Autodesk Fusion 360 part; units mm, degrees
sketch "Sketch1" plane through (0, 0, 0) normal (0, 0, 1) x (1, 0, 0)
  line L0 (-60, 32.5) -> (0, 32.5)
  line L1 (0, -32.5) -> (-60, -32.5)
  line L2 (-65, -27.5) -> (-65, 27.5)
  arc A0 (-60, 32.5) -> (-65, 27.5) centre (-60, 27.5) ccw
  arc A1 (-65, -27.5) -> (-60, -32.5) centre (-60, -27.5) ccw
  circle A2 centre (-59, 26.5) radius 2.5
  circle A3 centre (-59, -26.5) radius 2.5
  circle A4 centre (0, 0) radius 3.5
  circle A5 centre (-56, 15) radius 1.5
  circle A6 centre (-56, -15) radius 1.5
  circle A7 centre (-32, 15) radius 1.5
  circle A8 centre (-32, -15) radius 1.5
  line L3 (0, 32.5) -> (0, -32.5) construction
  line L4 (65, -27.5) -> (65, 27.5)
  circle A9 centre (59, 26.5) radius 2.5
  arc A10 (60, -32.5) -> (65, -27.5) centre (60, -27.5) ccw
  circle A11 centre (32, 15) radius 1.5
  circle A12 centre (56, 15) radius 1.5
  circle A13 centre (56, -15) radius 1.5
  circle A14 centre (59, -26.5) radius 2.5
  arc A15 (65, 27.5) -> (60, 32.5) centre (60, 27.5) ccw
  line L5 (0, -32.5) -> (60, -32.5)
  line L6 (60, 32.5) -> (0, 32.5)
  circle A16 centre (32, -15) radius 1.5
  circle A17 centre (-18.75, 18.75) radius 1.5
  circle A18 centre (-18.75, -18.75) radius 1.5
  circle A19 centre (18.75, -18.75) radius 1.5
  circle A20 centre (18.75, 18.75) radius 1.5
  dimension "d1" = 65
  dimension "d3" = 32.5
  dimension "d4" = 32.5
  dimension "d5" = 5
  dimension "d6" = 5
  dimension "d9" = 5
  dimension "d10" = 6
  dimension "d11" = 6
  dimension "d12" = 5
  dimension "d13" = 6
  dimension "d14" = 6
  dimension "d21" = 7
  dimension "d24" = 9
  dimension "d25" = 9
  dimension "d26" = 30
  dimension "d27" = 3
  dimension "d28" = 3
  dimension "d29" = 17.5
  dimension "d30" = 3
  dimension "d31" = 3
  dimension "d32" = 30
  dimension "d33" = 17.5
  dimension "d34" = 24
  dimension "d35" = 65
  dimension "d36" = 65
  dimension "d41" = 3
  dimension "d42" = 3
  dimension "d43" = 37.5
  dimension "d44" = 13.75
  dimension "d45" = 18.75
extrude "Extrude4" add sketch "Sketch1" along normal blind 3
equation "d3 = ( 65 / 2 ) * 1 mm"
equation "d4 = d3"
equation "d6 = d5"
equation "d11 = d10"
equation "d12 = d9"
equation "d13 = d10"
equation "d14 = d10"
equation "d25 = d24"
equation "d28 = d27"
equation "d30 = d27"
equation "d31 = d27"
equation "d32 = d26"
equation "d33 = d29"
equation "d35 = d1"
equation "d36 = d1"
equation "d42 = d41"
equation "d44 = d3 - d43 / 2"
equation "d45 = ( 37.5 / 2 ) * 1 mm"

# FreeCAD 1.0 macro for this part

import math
import FreeCAD as App
import Part
import Sketcher

V = App.Vector
Q = App.Units.Quantity

doc = App.newDocument("Part")
body = doc.addObject("PartDesign::Body", "Body")

# Sketch on XY plane
sketch1 = doc.addObject("Sketcher::SketchObject", "Sketch")
body.addObject(sketch1)
sketch1.AttachmentSupport = (doc.XY_Plane, [""])
sketch1.MapMode = "FlatFace"
sketch1.addGeometry([
    Part.LineSegment(V(60, 32.5, 0), V(-60, 32.5, 0)),  # 0
    Part.ArcOfCircle(Part.Circle(V(-60, 27.5, 0), V(0, 0, 1), 5), math.radians(90), math.radians(180)),  # 1
    Part.LineSegment(V(-65, 27.5, 0), V(-65, -27.5, 0)),  # 2
    Part.ArcOfCircle(Part.Circle(V(-60, -27.5, 0), V(0, 0, 1), 5), math.radians(180), math.radians(270)),  # 3
    Part.LineSegment(V(-60, -32.5, 0), V(60, -32.5, 0)),  # 4
    Part.ArcOfCircle(Part.Circle(V(60, -27.5, 0), V(0, 0, 1), 5), math.radians(-90), math.radians(0)),  # 5
    Part.LineSegment(V(65, -27.5, 0), V(65, 27.5, 0)),  # 6
    Part.ArcOfCircle(Part.Circle(V(60, 27.5, 0), V(0, 0, 1), 5), math.radians(0), math.radians(90)),  # 7
    Part.Circle(V(-59, -26.5, 0), V(0, 0, 1), 2.5),  # 8
    Part.Circle(V(-18.8, -18.8, 0), V(0, 0, 1), 1.5),  # 9
    Part.Circle(V(-56, -15, 0), V(0, 0, 1), 1.5),  # 10
    Part.Circle(V(-32, -15, 0), V(0, 0, 1), 1.5),  # 11
    Part.Circle(V(18.8, -18.8, 0), V(0, 0, 1), 1.5),  # 12
    Part.Circle(V(59, -26.5, 0), V(0, 0, 1), 2.5),  # 13
    Part.Circle(V(32, -15, 0), V(0, 0, 1), 1.5),  # 14
    Part.Circle(V(56, -15, 0), V(0, 0, 1), 1.5),  # 15
    Part.Circle(V(-56, 15, 0), V(0, 0, 1), 1.5),  # 16
    Part.Circle(V(-32, 15, 0), V(0, 0, 1), 1.5),  # 17
    Part.Circle(V(-59, 26.5, 0), V(0, 0, 1), 2.5),  # 18
    Part.Circle(V(-18.8, 18.8, 0), V(0, 0, 1), 1.5),  # 19
    Part.Circle(V(0, 0, 0), V(0, 0, 1), 3.5),  # 20
    Part.Circle(V(32, 15, 0), V(0, 0, 1), 1.5),  # 21
    Part.Circle(V(56, 15, 0), V(0, 0, 1), 1.5),  # 22
    Part.Circle(V(18.8, 18.8, 0), V(0, 0, 1), 1.5),  # 23
    Part.Circle(V(59, 26.5, 0), V(0, 0, 1), 2.5),  # 24
], False)
sketch1.addConstraint([
    Sketcher.Constraint("Tangent", 0, 2, 1, 1),
    Sketcher.Constraint("Tangent", 1, 2, 2, 1),
    Sketcher.Constraint("Tangent", 2, 2, 3, 1),
    Sketcher.Constraint("Tangent", 3, 2, 4, 1),
    Sketcher.Constraint("Tangent", 4, 2, 5, 1),
    Sketcher.Constraint("Tangent", 5, 2, 6, 1),
    Sketcher.Constraint("Tangent", 6, 2, 7, 1),
    Sketcher.Constraint("Tangent", 7, 2, 0, 1),
    Sketcher.Constraint("Horizontal", 0),
    Sketcher.Constraint("Vertical", 2),
    Sketcher.Constraint("Horizontal", 4),
    Sketcher.Constraint("Vertical", 6),
    Sketcher.Constraint("Coincident", 20, 3, -1, 1),
    Sketcher.Constraint("Equal", 1, 3),
    Sketcher.Constraint("Equal", 3, 5),
    Sketcher.Constraint("Equal", 5, 7),
    Sketcher.Constraint("Equal", 9, 10),
    Sketcher.Constraint("Equal", 10, 11),
    Sketcher.Constraint("Equal", 11, 12),
    Sketcher.Constraint("Equal", 8, 13),
    Sketcher.Constraint("Equal", 12, 14),
    Sketcher.Constraint("Equal", 14, 15),
    Sketcher.Constraint("Equal", 15, 16),
    Sketcher.Constraint("Equal", 16, 17),
    Sketcher.Constraint("Equal", 13, 18),
    Sketcher.Constraint("Equal", 17, 19),
    Sketcher.Constraint("Equal", 19, 21),
    Sketcher.Constraint("Equal", 21, 22),
    Sketcher.Constraint("Equal", 22, 23),
    Sketcher.Constraint("Equal", 18, 24),
    Sketcher.Constraint("Symmetric", 1, 3, 5, 3, -1, 1),
    Sketcher.Constraint("Symmetric", 15, 3, 16, 3, -1, 1),
    Sketcher.Constraint("Symmetric", 14, 3, 17, 3, -1, 1),
    Sketcher.Constraint("Symmetric", 13, 3, 18, 3, -1, 1),
    Sketcher.Constraint("Symmetric", 12, 3, 19, 3, -1, 1),
    Sketcher.Constraint("Symmetric", 11, 3, 21, 3, -1, 1),
    Sketcher.Constraint("Symmetric", 10, 3, 22, 3, -1, 1),
    Sketcher.Constraint("Symmetric", 9, 3, 23, 3, -1, 1),
    Sketcher.Constraint("Symmetric", 8, 3, 24, 3, -1, 1),
    Sketcher.Constraint("Symmetric", 9, 3, 12, 3, -2),
    Sketcher.Constraint("Symmetric", 8, 3, 13, 3, -2),
    Sketcher.Constraint("Symmetric", 11, 3, 14, 3, -2),
    Sketcher.Constraint("Symmetric", 10, 3, 15, 3, -2),
    Sketcher.Constraint("Horizontal", 10, 3, 11, 3),
    Sketcher.Constraint("Diameter", 8, Q("5 mm")),
    Sketcher.Constraint("Diameter", 9, Q("3 mm")),
    Sketcher.Constraint("Diameter", 20, Q("7 mm")),
    Sketcher.Constraint("Radius", 1, Q("5 mm")),
    Sketcher.Constraint("DistanceX", 1, 2, -1, 1, Q("65 mm")),
    Sketcher.Constraint("DistanceX", 8, 3, 10, 3, Q("3 mm")),
    Sketcher.Constraint("DistanceX", 10, 3, 11, 3, Q("24 mm")),
    Sketcher.Constraint("DistanceY", 10, 3, 16, 3, Q("30 mm")),
    Sketcher.Constraint("DistanceY", 18, 3, 0, 2, Q("6 mm")),
    Sketcher.Constraint("DistanceX", 1, 2, 18, 3, Q("6 mm")),
    Sketcher.Constraint("DistanceY", -1, 1, 0, 2, Q("32.5 mm")),
    Sketcher.Constraint("DistanceX", 9, 3, 12, 3, Q("37.5 mm")),
    Sketcher.Constraint("DistanceY", 9, 3, 19, 3, Q("37.5 mm")),
])
pad1 = doc.addObject("PartDesign::Pad", "Pad")
body.addObject(pad1)
pad1.Profile = sketch1
pad1.Length = 3

doc.recompute()
